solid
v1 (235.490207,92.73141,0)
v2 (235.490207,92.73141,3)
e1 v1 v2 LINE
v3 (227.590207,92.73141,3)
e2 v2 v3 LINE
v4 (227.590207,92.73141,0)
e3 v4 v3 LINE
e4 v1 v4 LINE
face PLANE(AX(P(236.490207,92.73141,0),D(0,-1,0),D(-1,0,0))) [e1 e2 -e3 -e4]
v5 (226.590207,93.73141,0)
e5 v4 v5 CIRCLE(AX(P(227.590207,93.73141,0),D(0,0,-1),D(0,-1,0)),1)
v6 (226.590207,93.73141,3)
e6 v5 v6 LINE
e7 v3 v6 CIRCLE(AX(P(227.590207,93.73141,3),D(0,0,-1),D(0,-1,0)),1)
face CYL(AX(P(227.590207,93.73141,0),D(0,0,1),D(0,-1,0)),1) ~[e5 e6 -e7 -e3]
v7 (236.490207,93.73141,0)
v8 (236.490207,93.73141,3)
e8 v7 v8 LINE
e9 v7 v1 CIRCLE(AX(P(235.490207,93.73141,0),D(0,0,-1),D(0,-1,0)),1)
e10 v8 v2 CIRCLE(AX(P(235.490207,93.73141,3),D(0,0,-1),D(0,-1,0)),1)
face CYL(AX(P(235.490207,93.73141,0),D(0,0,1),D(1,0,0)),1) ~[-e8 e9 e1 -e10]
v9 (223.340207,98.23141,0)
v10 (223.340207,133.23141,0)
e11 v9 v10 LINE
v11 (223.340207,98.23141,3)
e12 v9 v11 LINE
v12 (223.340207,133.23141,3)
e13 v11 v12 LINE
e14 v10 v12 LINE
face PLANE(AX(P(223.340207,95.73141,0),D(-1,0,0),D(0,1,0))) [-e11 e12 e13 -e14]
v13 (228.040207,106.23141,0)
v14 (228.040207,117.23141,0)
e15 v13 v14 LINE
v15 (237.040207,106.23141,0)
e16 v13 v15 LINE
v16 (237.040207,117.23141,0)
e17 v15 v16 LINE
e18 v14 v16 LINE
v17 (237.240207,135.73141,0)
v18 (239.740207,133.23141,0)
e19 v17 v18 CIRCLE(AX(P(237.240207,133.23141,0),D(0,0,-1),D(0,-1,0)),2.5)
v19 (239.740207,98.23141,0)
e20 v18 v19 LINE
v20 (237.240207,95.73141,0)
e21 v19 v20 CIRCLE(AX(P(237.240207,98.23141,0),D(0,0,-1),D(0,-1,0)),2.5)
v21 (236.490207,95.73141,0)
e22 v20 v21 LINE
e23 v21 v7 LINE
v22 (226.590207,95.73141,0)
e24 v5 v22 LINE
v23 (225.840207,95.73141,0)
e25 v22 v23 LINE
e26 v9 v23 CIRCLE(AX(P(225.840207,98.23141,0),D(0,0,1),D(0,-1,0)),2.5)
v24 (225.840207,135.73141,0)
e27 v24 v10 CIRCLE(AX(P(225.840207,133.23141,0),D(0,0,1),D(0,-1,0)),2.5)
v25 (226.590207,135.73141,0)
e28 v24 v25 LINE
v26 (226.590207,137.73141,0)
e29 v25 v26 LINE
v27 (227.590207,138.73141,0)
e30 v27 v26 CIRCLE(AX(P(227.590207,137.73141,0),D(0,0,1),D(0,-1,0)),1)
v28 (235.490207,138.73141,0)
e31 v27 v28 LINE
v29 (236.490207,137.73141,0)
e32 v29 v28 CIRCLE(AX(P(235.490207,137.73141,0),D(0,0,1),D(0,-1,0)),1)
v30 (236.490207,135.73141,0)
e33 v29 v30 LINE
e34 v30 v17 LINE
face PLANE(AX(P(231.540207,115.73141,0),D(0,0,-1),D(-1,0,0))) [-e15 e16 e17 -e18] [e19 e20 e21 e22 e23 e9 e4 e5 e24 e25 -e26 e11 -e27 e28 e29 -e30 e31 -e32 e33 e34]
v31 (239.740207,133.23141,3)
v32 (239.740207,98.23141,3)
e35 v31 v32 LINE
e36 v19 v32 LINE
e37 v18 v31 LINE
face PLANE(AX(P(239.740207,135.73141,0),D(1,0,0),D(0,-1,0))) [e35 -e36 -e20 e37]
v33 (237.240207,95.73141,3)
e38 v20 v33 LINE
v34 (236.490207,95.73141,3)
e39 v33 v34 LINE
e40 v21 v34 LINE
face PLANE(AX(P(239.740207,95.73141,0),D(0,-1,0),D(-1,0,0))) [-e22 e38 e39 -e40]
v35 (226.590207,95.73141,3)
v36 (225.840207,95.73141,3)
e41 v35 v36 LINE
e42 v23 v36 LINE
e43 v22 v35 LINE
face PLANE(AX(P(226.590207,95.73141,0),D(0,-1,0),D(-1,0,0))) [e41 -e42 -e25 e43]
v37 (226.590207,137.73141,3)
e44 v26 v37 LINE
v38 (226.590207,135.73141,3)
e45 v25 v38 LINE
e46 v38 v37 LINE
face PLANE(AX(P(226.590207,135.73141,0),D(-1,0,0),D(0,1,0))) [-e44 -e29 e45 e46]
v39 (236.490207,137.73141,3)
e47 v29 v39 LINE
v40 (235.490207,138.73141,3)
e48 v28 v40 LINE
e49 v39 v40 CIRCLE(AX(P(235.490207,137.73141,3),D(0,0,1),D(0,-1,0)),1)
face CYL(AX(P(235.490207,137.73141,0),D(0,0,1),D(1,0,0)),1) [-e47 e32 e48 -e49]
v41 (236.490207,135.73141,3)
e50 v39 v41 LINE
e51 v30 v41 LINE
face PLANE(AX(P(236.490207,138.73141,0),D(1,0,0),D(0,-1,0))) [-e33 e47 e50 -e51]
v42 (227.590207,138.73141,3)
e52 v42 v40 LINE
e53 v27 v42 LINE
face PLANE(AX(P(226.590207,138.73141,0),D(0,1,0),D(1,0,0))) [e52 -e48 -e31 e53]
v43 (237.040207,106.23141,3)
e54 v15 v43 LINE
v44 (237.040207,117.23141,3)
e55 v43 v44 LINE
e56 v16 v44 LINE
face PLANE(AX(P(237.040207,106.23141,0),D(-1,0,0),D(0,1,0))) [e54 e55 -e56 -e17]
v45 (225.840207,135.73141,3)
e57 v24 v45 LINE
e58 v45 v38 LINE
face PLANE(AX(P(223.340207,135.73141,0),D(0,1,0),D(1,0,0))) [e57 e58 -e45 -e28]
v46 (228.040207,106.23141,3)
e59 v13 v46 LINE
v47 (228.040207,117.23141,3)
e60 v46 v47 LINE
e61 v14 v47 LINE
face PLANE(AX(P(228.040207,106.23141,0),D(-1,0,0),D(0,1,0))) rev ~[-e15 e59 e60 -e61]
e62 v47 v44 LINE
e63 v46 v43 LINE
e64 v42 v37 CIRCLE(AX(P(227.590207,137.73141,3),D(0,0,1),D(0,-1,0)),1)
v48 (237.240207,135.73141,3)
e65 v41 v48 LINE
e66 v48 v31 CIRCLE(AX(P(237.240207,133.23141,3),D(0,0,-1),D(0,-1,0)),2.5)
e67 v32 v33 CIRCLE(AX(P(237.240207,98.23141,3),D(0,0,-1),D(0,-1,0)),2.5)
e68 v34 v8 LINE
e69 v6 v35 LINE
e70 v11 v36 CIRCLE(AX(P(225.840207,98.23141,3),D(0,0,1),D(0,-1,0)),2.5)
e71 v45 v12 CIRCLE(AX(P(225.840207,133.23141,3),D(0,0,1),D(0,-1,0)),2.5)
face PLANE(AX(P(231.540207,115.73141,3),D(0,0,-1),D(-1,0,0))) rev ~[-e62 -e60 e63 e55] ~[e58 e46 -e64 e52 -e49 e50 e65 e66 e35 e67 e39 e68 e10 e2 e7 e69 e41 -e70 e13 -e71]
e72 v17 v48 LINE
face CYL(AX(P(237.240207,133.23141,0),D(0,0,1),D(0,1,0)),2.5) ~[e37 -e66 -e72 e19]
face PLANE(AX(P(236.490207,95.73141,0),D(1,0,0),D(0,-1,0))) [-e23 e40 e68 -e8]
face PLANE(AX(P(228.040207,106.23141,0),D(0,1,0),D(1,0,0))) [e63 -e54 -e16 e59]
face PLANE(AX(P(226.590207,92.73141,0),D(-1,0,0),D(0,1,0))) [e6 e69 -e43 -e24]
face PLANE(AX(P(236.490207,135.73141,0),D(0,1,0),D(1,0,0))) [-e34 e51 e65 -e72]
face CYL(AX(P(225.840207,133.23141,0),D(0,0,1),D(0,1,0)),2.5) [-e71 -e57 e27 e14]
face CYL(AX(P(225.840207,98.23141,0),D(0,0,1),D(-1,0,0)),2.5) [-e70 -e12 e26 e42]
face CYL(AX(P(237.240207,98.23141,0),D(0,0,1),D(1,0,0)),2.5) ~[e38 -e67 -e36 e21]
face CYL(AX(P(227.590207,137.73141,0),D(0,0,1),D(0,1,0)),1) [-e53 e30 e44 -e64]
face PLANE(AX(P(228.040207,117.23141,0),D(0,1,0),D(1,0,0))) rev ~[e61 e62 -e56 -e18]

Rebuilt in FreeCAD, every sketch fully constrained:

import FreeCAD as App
import Part
import Sketcher

V = App.Vector


def edges_at(feature, points):
    """Names of the edges that pass closest to the given points."""
    edges = feature.Shape.Edges
    near = lambda p: min(range(len(edges)), key=lambda i: edges[i].distToShape(Part.Vertex(*p))[0])
    return sorted({f"Edge{near(p) + 1}" for p in points})

doc = App.newDocument("Part")
body = doc.addObject("PartDesign::Body", "Body")

# Sketch on XY plane
sketch1 = body.newObject("Sketcher::SketchObject", "Sketch")
sketch1.AttachmentSupport = (doc.getObject("XY_Plane"), [""])
sketch1.MapMode = "FlatFace"
sketch1.addGeometry(Part.LineSegment(V(39.740207, -4.26859, 0), V(39.740207, 35.73141, 0)), False)
sketch1.addGeometry(Part.LineSegment(V(39.740207, 35.73141, 0), V(36.490207, 35.73141, 0)), False)
sketch1.addGeometry(Part.LineSegment(V(36.490207, 35.73141, 0), V(36.490207, 38.73141, 0)), False)
sketch1.addGeometry(Part.LineSegment(V(36.490207, 38.73141, 0), V(26.590207, 38.73141, 0)), False)
sketch1.addGeometry(Part.LineSegment(V(26.590207, 38.73141, 0), V(26.590207, 35.73141, 0)), False)
sketch1.addGeometry(Part.LineSegment(V(26.590207, 35.73141, 0), V(23.340207, 35.73141, 0)), False)
sketch1.addGeometry(Part.LineSegment(V(23.340207, 35.73141, 0), V(23.340207, -4.26859, 0)), False)
sketch1.addGeometry(Part.LineSegment(V(23.340207, -4.26859, 0), V(26.590207, -4.26859, 0)), False)
sketch1.addGeometry(Part.LineSegment(V(26.590207, -4.26859, 0), V(26.590207, -7.26859, 0)), False)
sketch1.addGeometry(Part.LineSegment(V(26.590207, -7.26859, 0), V(36.490207, -7.26859, 0)), False)
sketch1.addGeometry(Part.LineSegment(V(36.490207, -7.26859, 0), V(36.490207, -4.26859, 0)), False)
sketch1.addGeometry(Part.LineSegment(V(36.490207, -4.26859, 0), V(39.740207, -4.26859, 0)), False)
sketch1.addGeometry(Part.LineSegment(V(28.040207, 6.23141, 0), V(28.040207, 17.23141, 0)), False)
sketch1.addGeometry(Part.LineSegment(V(28.040207, 17.23141, 0), V(37.040207, 17.23141, 0)), False)
sketch1.addGeometry(Part.LineSegment(V(37.040207, 17.23141, 0), V(37.040207, 6.23141, 0)), False)
sketch1.addGeometry(Part.LineSegment(V(37.040207, 6.23141, 0), V(28.040207, 6.23141, 0)), False)
sketch1.addConstraint(Sketcher.Constraint("Coincident", 0, 2, 1, 1))
sketch1.addConstraint(Sketcher.Constraint("Coincident", 1, 2, 2, 1))
sketch1.addConstraint(Sketcher.Constraint("Coincident", 2, 2, 3, 1))
sketch1.addConstraint(Sketcher.Constraint("Coincident", 3, 2, 4, 1))
sketch1.addConstraint(Sketcher.Constraint("Coincident", 4, 2, 5, 1))
sketch1.addConstraint(Sketcher.Constraint("Coincident", 5, 2, 6, 1))
sketch1.addConstraint(Sketcher.Constraint("Coincident", 6, 2, 7, 1))
sketch1.addConstraint(Sketcher.Constraint("Coincident", 7, 2, 8, 1))
sketch1.addConstraint(Sketcher.Constraint("Coincident", 8, 2, 9, 1))
sketch1.addConstraint(Sketcher.Constraint("Coincident", 9, 2, 10, 1))
sketch1.addConstraint(Sketcher.Constraint("Coincident", 10, 2, 11, 1))
sketch1.addConstraint(Sketcher.Constraint("Coincident", 11, 2, 0, 1))
sketch1.addConstraint(Sketcher.Constraint("Coincident", 12, 2, 13, 1))
sketch1.addConstraint(Sketcher.Constraint("Coincident", 13, 2, 14, 1))
sketch1.addConstraint(Sketcher.Constraint("Coincident", 14, 2, 15, 1))
sketch1.addConstraint(Sketcher.Constraint("Coincident", 15, 2, 12, 1))
sketch1.addConstraint(Sketcher.Constraint("Vertical", 0))
sketch1.addConstraint(Sketcher.Constraint("Horizontal", 1))
sketch1.addConstraint(Sketcher.Constraint("Vertical", 2))
sketch1.addConstraint(Sketcher.Constraint("Horizontal", 3))
sketch1.addConstraint(Sketcher.Constraint("Vertical", 4))
sketch1.addConstraint(Sketcher.Constraint("Horizontal", 5))
sketch1.addConstraint(Sketcher.Constraint("Vertical", 6))
sketch1.addConstraint(Sketcher.Constraint("Horizontal", 7))
sketch1.addConstraint(Sketcher.Constraint("Vertical", 8))
sketch1.addConstraint(Sketcher.Constraint("Horizontal", 9))
sketch1.addConstraint(Sketcher.Constraint("Vertical", 10))
sketch1.addConstraint(Sketcher.Constraint("Horizontal", 11))
sketch1.addConstraint(Sketcher.Constraint("Vertical", 12))
sketch1.addConstraint(Sketcher.Constraint("Horizontal", 13))
sketch1.addConstraint(Sketcher.Constraint("Vertical", 14))
sketch1.addConstraint(Sketcher.Constraint("Horizontal", 15))
sketch1.addConstraint(Sketcher.Constraint("Horizontal", 1, 2, 4, 2))
sketch1.addConstraint(Sketcher.Constraint("Horizontal", 7, 2, 10, 2))
sketch1.addConstraint(Sketcher.Constraint("Vertical", 4, 2, 7, 2))
sketch1.addConstraint(Sketcher.Constraint("Vertical", 2, 2, 9, 2))
sketch1.addConstraint(Sketcher.Constraint("Equal", 1, 5))
sketch1.addConstraint(Sketcher.Constraint("Equal", 4, 8))
sketch1.addConstraint(Sketcher.Constraint("DistanceX", 13, 1, 13, 2, 9.0))
sketch1.addConstraint(Sketcher.Constraint("DistanceY", 0, 1, 0, 2, 40.0))
sketch1.addConstraint(Sketcher.Constraint("DistanceY", 2, 1, 2, 2, 3.0))
sketch1.addConstraint(Sketcher.Constraint("DistanceY", 12, 1, 12, 2, 11.0))
sketch1.addConstraint(Sketcher.Constraint("DistanceX", 3, 2, 3, 1, 9.9))
sketch1.addConstraint(Sketcher.Constraint("DistanceX", 1, 2, 1, 1, 3.25))
sketch1.addConstraint(Sketcher.Constraint("DistanceY", 12, 2, 4, 2, 18.5))
sketch1.addConstraint(Sketcher.Constraint("DistanceX", 5, 2, 12, 2, 4.7))
sketch1.addConstraint(Sketcher.Constraint("DistanceY", -1, 1, 0, 2, 35.73141))
sketch1.addConstraint(Sketcher.Constraint("DistanceX", -1, 1, 0, 2, 39.740207))
pad1 = body.newObject("PartDesign::Pad", "Pad")
pad1.Profile = sketch1
pad1.Length = 3
doc.recompute()

fillet = body.newObject("PartDesign::Fillet", "Fillet")
fillet.Base = (pad1, edges_at(pad1, [
    (36.49, -7.269, 1.5),
    (26.59, -7.269, 1.5),
    (36.49, 38.731, 1.5),
    (26.59, 38.731, 1.5),
]))
fillet.Radius = 1
doc.recompute()

fillet2 = body.newObject("PartDesign::Fillet", "Fillet001")
fillet2.Base = (fillet, edges_at(fillet, [
    (39.74, -4.269, 1.5),
    (39.74, 35.731, 1.5),
    (23.34, -4.269, 1.5),
    (23.34, 35.731, 1.5),
]))
fillet2.Radius = 2.5
body2 = doc.addObject("PartDesign::Body", "Body001")
doc.recompute()

body.Placement = App.Placement(V(200, 100, 0), App.Rotation(V(0, 0, 1), 0))
boolean = body2.newObject("PartDesign::Boolean", "Boolean")
boolean.Type = "Fuse"
boolean.addObjects([body])

doc.recompute()
